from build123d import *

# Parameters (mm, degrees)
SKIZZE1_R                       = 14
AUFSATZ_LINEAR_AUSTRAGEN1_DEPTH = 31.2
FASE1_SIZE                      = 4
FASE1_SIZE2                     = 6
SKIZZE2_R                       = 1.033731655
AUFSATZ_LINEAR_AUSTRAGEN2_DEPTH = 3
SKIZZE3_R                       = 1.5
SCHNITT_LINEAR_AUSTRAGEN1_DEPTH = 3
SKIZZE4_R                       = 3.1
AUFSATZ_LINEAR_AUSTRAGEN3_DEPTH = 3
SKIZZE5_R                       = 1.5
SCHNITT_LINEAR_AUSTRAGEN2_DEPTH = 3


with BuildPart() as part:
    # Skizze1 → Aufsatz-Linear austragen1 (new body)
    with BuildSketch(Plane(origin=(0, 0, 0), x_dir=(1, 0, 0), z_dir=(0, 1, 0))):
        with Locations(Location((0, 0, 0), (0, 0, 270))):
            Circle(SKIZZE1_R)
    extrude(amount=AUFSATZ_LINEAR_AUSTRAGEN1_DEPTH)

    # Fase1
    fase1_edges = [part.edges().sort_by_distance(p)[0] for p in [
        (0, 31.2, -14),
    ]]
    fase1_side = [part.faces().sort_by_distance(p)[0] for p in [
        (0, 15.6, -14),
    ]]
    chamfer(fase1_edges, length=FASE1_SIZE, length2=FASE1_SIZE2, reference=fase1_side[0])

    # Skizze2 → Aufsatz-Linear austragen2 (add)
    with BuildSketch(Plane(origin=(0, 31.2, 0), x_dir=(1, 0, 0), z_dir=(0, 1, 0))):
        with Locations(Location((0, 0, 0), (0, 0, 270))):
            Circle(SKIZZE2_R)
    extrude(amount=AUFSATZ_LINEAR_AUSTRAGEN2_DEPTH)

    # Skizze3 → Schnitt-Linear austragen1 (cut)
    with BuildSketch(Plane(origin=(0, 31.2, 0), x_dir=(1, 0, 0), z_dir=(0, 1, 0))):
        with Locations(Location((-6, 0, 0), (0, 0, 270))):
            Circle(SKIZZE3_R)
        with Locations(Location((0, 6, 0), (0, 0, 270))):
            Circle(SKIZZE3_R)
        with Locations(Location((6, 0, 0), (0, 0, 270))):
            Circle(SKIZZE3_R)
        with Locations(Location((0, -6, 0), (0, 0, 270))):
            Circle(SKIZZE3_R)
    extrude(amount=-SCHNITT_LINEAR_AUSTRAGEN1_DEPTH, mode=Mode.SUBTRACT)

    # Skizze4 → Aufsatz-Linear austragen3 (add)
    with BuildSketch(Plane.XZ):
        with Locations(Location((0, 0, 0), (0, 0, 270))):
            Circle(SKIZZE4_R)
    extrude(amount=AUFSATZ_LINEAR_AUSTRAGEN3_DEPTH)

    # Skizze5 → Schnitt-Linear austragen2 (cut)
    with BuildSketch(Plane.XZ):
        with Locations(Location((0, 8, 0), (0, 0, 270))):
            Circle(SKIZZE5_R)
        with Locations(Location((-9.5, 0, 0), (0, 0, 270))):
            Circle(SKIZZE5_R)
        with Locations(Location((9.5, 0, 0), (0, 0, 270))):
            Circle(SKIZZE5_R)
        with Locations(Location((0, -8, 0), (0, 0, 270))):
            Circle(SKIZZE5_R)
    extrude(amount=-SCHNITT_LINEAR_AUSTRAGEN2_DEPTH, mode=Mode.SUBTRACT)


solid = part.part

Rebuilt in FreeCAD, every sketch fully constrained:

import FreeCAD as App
import Part
import Sketcher

V = App.Vector


def edges_at(feature, points):
    """Names of the edges that pass closest to the given points."""
    edges = feature.Shape.Edges
    near = lambda p: min(range(len(edges)), key=lambda i: edges[i].distToShape(Part.Vertex(*p))[0])
    return sorted({f"Edge{near(p) + 1}" for p in points})

doc = App.newDocument("Part")
body = doc.addObject("PartDesign::Body", "Body")

sketch1 = doc.addObject("Sketcher::SketchObject", "Sketch")
body.addObject(sketch1)
sketch1.AttachmentSupport = (doc.XZ_Plane, [""])
sketch1.MapMode = "FlatFace"
sketch1.addGeometry(Part.Circle(V(0, 0, 0), V(0, 0, 1), 14), False)
sketch1.addConstraint([
    Sketcher.Constraint("Coincident", 0, 3, -1, 1),
    Sketcher.Constraint("Diameter", 0, 28.0),
])
pad1 = doc.addObject("PartDesign::Pad", "Pad")
body.addObject(pad1)
pad1.Profile = sketch1
pad1.Length = 31.2
pad1.Reversed = True
doc.recompute()

chamfer = doc.addObject("PartDesign::Chamfer", "Chamfer")
body.addObject(chamfer)
chamfer.Base = (pad1, edges_at(pad1, [(0, 31.2, -14)]))
chamfer.ChamferType = "Two distances"
chamfer.Size = 4
chamfer.Size2 = 6

sketch2 = doc.addObject("Sketcher::SketchObject", "Sketch001")
body.addObject(sketch2)
sketch2.AttachmentSupport = (doc.XZ_Plane, [""])
sketch2.MapMode = "FlatFace"
sketch2.AttachmentOffset = App.Placement(V(0, 0, -31.2), App.Rotation())
sketch2.addGeometry(Part.Circle(V(0, 0, 0), V(0, 0, 1), 1.033732), False)
sketch2.addConstraint([
    Sketcher.Constraint("Coincident", 0, 3, -1, 1),
    Sketcher.Constraint("Diameter", 0, 2.067463),
])
pad2 = doc.addObject("PartDesign::Pad", "Pad001")
body.addObject(pad2)
pad2.Profile = sketch2
pad2.Length = 3
pad2.Reversed = True

sketch3 = doc.addObject("Sketcher::SketchObject", "Sketch002")
body.addObject(sketch3)
sketch3.AttachmentSupport = (doc.XZ_Plane, [""])
sketch3.MapMode = "FlatFace"
sketch3.AttachmentOffset = App.Placement(V(0, 0, -31.2), App.Rotation())
sketch3.addGeometry([
    Part.Circle(V(-6, 0, 0), V(0, 0, 1), 1.5),
    Part.Circle(V(0, -6, 0), V(0, 0, 1), 1.5),
    Part.Circle(V(6, 0, 0), V(0, 0, 1), 1.5),
    Part.Circle(V(0, 6, 0), V(0, 0, 1), 1.5),
], False)
sketch3.addConstraint([
    Sketcher.Constraint("Equal", 0, 1),
    Sketcher.Constraint("Equal", 1, 2),
    Sketcher.Constraint("Equal", 2, 3),
    Sketcher.Constraint("Symmetric", 0, 3, 2, 3, -1, 1),
    Sketcher.Constraint("Symmetric", 1, 3, 3, 3, -1, 1),
    Sketcher.Constraint("PointOnObject", 0, 3, -1),
    Sketcher.Constraint("PointOnObject", 1, 3, -2),
    Sketcher.Constraint("Diameter", 0, 3.0),
    Sketcher.Constraint("DistanceX", 0, 3, -1, 1, 6.0),
    Sketcher.Constraint("DistanceY", 1, 3, -1, 1, 6.0),
])
pocket1 = doc.addObject("PartDesign::Pocket", "Pocket")
body.addObject(pocket1)
pocket1.Profile = sketch3
pocket1.Length = 3
pocket1.Reversed = True

sketch4 = doc.addObject("Sketcher::SketchObject", "Sketch003")
body.addObject(sketch4)
sketch4.AttachmentSupport = (doc.XZ_Plane, [""])
sketch4.MapMode = "FlatFace"
sketch4.addGeometry(Part.Circle(V(0, 0, 0), V(0, 0, 1), 3.1), False)
sketch4.addConstraint([
    Sketcher.Constraint("Coincident", 0, 3, -1, 1),
    Sketcher.Constraint("Diameter", 0, 6.2),
])
pad3 = doc.addObject("PartDesign::Pad", "Pad002")
body.addObject(pad3)
pad3.Profile = sketch4
pad3.Length = 3

sketch5 = doc.addObject("Sketcher::SketchObject", "Sketch004")
body.addObject(sketch5)
sketch5.AttachmentSupport = (doc.XZ_Plane, [""])
sketch5.MapMode = "FlatFace"
sketch5.addGeometry([
    Part.Circle(V(0, 8, 0), V(0, 0, 1), 1.5),
    Part.Circle(V(-9.5, 0, 0), V(0, 0, 1), 1.5),
    Part.Circle(V(9.5, 0, 0), V(0, 0, 1), 1.5),
    Part.Circle(V(0, -8, 0), V(0, 0, 1), 1.5),
], False)
sketch5.addConstraint([
    Sketcher.Constraint("Equal", 0, 1),
    Sketcher.Constraint("Equal", 1, 2),
    Sketcher.Constraint("Equal", 2, 3),
    Sketcher.Constraint("Symmetric", 1, 3, 2, 3, -1, 1),
    Sketcher.Constraint("Symmetric", 0, 3, 3, 3, -1, 1),
    Sketcher.Constraint("PointOnObject", 0, 3, -2),
    Sketcher.Constraint("PointOnObject", 1, 3, -1),
    Sketcher.Constraint("Diameter", 0, 3.0),
    Sketcher.Constraint("DistanceY", -1, 1, 0, 3, 8.0),
    Sketcher.Constraint("DistanceX", 1, 3, 2, 3, 19.0),
])
pocket2 = doc.addObject("PartDesign::Pocket", "Pocket001")
body.addObject(pocket2)
pocket2.Profile = sketch5
pocket2.Length = 3

doc.recompute()
